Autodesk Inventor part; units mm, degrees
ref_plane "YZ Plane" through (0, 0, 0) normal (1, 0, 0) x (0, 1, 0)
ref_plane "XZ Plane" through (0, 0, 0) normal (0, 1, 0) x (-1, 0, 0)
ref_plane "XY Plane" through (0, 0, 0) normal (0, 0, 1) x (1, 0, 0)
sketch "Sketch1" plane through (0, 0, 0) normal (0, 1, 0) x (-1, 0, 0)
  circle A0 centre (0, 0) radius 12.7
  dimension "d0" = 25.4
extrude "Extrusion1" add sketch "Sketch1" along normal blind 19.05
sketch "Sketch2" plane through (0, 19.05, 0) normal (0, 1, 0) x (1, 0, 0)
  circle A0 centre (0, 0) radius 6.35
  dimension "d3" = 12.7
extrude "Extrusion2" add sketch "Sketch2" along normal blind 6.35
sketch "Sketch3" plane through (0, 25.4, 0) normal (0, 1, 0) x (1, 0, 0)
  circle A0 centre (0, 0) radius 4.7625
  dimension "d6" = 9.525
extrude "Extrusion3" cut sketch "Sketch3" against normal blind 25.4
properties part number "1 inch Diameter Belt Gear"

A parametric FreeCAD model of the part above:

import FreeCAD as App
import Part
import Sketcher
from FreeCAD import Vector
Q = App.Units.Quantity

doc = App.newDocument("Part")
body = doc.addObject("PartDesign::Body", "Body")

# Sketch on XZ plane
sketch1 = body.newObject("Sketcher::SketchObject", "Sketch")
sketch1.AttachmentSupport = (doc.getObject("XZ_Plane"), [""])
sketch1.MapMode = "FlatFace"
sketch1.addGeometry(Part.Circle(Vector(0, 0, 0), Vector(0, 0, 1), 13), False)
sketch1.addConstraint([
    Sketcher.Constraint("Coincident", 0, 3, -1, 1),
    Sketcher.Constraint("Diameter", 0, Q("1 in")),
])
pad1 = body.newObject("PartDesign::Pad", "Pad")
pad1.Profile = sketch1
pad1.Length = Q("0.75 in")
pad1.Reversed = True

# Sketch on XZ plane
sketch2 = body.newObject("Sketcher::SketchObject", "Sketch001")
sketch2.AttachmentSupport = (doc.getObject("XZ_Plane"), [""])
sketch2.MapMode = "FlatFace"
sketch2.AttachmentOffset = App.Placement(Vector(0, 0, -0.75 * 25.4), App.Rotation())
sketch2.addGeometry(Part.Circle(Vector(0, 0, 0), Vector(0, 0, 1), 6), False)
sketch2.addConstraint([
    Sketcher.Constraint("Coincident", 0, 3, -1, 1),
    Sketcher.Constraint("Diameter", 0, Q("0.5 in")),
])
pad2 = body.newObject("PartDesign::Pad", "Pad001")
pad2.Profile = sketch2
pad2.Length = Q("0.25 in")
pad2.Reversed = True

# Sketch on XZ plane
sketch3 = body.newObject("Sketcher::SketchObject", "Sketch002")
sketch3.AttachmentSupport = (doc.getObject("XZ_Plane"), [""])
sketch3.MapMode = "FlatFace"
sketch3.AttachmentOffset = App.Placement(Vector(0, 0, -1 * 25.4), App.Rotation())
sketch3.addGeometry(Part.Circle(Vector(0, 0, 0), Vector(0, 0, 1), 4.8), False)
sketch3.addConstraint([
    Sketcher.Constraint("Coincident", 0, 3, -1, 1),
    Sketcher.Constraint("Diameter", 0, Q("0.375 in")),
])
pocket1 = body.newObject("PartDesign::Pocket", "Pocket")
pocket1.Profile = sketch3
pocket1.Length = Q("1 in")
pocket1.Reversed = True

doc.recompute()
